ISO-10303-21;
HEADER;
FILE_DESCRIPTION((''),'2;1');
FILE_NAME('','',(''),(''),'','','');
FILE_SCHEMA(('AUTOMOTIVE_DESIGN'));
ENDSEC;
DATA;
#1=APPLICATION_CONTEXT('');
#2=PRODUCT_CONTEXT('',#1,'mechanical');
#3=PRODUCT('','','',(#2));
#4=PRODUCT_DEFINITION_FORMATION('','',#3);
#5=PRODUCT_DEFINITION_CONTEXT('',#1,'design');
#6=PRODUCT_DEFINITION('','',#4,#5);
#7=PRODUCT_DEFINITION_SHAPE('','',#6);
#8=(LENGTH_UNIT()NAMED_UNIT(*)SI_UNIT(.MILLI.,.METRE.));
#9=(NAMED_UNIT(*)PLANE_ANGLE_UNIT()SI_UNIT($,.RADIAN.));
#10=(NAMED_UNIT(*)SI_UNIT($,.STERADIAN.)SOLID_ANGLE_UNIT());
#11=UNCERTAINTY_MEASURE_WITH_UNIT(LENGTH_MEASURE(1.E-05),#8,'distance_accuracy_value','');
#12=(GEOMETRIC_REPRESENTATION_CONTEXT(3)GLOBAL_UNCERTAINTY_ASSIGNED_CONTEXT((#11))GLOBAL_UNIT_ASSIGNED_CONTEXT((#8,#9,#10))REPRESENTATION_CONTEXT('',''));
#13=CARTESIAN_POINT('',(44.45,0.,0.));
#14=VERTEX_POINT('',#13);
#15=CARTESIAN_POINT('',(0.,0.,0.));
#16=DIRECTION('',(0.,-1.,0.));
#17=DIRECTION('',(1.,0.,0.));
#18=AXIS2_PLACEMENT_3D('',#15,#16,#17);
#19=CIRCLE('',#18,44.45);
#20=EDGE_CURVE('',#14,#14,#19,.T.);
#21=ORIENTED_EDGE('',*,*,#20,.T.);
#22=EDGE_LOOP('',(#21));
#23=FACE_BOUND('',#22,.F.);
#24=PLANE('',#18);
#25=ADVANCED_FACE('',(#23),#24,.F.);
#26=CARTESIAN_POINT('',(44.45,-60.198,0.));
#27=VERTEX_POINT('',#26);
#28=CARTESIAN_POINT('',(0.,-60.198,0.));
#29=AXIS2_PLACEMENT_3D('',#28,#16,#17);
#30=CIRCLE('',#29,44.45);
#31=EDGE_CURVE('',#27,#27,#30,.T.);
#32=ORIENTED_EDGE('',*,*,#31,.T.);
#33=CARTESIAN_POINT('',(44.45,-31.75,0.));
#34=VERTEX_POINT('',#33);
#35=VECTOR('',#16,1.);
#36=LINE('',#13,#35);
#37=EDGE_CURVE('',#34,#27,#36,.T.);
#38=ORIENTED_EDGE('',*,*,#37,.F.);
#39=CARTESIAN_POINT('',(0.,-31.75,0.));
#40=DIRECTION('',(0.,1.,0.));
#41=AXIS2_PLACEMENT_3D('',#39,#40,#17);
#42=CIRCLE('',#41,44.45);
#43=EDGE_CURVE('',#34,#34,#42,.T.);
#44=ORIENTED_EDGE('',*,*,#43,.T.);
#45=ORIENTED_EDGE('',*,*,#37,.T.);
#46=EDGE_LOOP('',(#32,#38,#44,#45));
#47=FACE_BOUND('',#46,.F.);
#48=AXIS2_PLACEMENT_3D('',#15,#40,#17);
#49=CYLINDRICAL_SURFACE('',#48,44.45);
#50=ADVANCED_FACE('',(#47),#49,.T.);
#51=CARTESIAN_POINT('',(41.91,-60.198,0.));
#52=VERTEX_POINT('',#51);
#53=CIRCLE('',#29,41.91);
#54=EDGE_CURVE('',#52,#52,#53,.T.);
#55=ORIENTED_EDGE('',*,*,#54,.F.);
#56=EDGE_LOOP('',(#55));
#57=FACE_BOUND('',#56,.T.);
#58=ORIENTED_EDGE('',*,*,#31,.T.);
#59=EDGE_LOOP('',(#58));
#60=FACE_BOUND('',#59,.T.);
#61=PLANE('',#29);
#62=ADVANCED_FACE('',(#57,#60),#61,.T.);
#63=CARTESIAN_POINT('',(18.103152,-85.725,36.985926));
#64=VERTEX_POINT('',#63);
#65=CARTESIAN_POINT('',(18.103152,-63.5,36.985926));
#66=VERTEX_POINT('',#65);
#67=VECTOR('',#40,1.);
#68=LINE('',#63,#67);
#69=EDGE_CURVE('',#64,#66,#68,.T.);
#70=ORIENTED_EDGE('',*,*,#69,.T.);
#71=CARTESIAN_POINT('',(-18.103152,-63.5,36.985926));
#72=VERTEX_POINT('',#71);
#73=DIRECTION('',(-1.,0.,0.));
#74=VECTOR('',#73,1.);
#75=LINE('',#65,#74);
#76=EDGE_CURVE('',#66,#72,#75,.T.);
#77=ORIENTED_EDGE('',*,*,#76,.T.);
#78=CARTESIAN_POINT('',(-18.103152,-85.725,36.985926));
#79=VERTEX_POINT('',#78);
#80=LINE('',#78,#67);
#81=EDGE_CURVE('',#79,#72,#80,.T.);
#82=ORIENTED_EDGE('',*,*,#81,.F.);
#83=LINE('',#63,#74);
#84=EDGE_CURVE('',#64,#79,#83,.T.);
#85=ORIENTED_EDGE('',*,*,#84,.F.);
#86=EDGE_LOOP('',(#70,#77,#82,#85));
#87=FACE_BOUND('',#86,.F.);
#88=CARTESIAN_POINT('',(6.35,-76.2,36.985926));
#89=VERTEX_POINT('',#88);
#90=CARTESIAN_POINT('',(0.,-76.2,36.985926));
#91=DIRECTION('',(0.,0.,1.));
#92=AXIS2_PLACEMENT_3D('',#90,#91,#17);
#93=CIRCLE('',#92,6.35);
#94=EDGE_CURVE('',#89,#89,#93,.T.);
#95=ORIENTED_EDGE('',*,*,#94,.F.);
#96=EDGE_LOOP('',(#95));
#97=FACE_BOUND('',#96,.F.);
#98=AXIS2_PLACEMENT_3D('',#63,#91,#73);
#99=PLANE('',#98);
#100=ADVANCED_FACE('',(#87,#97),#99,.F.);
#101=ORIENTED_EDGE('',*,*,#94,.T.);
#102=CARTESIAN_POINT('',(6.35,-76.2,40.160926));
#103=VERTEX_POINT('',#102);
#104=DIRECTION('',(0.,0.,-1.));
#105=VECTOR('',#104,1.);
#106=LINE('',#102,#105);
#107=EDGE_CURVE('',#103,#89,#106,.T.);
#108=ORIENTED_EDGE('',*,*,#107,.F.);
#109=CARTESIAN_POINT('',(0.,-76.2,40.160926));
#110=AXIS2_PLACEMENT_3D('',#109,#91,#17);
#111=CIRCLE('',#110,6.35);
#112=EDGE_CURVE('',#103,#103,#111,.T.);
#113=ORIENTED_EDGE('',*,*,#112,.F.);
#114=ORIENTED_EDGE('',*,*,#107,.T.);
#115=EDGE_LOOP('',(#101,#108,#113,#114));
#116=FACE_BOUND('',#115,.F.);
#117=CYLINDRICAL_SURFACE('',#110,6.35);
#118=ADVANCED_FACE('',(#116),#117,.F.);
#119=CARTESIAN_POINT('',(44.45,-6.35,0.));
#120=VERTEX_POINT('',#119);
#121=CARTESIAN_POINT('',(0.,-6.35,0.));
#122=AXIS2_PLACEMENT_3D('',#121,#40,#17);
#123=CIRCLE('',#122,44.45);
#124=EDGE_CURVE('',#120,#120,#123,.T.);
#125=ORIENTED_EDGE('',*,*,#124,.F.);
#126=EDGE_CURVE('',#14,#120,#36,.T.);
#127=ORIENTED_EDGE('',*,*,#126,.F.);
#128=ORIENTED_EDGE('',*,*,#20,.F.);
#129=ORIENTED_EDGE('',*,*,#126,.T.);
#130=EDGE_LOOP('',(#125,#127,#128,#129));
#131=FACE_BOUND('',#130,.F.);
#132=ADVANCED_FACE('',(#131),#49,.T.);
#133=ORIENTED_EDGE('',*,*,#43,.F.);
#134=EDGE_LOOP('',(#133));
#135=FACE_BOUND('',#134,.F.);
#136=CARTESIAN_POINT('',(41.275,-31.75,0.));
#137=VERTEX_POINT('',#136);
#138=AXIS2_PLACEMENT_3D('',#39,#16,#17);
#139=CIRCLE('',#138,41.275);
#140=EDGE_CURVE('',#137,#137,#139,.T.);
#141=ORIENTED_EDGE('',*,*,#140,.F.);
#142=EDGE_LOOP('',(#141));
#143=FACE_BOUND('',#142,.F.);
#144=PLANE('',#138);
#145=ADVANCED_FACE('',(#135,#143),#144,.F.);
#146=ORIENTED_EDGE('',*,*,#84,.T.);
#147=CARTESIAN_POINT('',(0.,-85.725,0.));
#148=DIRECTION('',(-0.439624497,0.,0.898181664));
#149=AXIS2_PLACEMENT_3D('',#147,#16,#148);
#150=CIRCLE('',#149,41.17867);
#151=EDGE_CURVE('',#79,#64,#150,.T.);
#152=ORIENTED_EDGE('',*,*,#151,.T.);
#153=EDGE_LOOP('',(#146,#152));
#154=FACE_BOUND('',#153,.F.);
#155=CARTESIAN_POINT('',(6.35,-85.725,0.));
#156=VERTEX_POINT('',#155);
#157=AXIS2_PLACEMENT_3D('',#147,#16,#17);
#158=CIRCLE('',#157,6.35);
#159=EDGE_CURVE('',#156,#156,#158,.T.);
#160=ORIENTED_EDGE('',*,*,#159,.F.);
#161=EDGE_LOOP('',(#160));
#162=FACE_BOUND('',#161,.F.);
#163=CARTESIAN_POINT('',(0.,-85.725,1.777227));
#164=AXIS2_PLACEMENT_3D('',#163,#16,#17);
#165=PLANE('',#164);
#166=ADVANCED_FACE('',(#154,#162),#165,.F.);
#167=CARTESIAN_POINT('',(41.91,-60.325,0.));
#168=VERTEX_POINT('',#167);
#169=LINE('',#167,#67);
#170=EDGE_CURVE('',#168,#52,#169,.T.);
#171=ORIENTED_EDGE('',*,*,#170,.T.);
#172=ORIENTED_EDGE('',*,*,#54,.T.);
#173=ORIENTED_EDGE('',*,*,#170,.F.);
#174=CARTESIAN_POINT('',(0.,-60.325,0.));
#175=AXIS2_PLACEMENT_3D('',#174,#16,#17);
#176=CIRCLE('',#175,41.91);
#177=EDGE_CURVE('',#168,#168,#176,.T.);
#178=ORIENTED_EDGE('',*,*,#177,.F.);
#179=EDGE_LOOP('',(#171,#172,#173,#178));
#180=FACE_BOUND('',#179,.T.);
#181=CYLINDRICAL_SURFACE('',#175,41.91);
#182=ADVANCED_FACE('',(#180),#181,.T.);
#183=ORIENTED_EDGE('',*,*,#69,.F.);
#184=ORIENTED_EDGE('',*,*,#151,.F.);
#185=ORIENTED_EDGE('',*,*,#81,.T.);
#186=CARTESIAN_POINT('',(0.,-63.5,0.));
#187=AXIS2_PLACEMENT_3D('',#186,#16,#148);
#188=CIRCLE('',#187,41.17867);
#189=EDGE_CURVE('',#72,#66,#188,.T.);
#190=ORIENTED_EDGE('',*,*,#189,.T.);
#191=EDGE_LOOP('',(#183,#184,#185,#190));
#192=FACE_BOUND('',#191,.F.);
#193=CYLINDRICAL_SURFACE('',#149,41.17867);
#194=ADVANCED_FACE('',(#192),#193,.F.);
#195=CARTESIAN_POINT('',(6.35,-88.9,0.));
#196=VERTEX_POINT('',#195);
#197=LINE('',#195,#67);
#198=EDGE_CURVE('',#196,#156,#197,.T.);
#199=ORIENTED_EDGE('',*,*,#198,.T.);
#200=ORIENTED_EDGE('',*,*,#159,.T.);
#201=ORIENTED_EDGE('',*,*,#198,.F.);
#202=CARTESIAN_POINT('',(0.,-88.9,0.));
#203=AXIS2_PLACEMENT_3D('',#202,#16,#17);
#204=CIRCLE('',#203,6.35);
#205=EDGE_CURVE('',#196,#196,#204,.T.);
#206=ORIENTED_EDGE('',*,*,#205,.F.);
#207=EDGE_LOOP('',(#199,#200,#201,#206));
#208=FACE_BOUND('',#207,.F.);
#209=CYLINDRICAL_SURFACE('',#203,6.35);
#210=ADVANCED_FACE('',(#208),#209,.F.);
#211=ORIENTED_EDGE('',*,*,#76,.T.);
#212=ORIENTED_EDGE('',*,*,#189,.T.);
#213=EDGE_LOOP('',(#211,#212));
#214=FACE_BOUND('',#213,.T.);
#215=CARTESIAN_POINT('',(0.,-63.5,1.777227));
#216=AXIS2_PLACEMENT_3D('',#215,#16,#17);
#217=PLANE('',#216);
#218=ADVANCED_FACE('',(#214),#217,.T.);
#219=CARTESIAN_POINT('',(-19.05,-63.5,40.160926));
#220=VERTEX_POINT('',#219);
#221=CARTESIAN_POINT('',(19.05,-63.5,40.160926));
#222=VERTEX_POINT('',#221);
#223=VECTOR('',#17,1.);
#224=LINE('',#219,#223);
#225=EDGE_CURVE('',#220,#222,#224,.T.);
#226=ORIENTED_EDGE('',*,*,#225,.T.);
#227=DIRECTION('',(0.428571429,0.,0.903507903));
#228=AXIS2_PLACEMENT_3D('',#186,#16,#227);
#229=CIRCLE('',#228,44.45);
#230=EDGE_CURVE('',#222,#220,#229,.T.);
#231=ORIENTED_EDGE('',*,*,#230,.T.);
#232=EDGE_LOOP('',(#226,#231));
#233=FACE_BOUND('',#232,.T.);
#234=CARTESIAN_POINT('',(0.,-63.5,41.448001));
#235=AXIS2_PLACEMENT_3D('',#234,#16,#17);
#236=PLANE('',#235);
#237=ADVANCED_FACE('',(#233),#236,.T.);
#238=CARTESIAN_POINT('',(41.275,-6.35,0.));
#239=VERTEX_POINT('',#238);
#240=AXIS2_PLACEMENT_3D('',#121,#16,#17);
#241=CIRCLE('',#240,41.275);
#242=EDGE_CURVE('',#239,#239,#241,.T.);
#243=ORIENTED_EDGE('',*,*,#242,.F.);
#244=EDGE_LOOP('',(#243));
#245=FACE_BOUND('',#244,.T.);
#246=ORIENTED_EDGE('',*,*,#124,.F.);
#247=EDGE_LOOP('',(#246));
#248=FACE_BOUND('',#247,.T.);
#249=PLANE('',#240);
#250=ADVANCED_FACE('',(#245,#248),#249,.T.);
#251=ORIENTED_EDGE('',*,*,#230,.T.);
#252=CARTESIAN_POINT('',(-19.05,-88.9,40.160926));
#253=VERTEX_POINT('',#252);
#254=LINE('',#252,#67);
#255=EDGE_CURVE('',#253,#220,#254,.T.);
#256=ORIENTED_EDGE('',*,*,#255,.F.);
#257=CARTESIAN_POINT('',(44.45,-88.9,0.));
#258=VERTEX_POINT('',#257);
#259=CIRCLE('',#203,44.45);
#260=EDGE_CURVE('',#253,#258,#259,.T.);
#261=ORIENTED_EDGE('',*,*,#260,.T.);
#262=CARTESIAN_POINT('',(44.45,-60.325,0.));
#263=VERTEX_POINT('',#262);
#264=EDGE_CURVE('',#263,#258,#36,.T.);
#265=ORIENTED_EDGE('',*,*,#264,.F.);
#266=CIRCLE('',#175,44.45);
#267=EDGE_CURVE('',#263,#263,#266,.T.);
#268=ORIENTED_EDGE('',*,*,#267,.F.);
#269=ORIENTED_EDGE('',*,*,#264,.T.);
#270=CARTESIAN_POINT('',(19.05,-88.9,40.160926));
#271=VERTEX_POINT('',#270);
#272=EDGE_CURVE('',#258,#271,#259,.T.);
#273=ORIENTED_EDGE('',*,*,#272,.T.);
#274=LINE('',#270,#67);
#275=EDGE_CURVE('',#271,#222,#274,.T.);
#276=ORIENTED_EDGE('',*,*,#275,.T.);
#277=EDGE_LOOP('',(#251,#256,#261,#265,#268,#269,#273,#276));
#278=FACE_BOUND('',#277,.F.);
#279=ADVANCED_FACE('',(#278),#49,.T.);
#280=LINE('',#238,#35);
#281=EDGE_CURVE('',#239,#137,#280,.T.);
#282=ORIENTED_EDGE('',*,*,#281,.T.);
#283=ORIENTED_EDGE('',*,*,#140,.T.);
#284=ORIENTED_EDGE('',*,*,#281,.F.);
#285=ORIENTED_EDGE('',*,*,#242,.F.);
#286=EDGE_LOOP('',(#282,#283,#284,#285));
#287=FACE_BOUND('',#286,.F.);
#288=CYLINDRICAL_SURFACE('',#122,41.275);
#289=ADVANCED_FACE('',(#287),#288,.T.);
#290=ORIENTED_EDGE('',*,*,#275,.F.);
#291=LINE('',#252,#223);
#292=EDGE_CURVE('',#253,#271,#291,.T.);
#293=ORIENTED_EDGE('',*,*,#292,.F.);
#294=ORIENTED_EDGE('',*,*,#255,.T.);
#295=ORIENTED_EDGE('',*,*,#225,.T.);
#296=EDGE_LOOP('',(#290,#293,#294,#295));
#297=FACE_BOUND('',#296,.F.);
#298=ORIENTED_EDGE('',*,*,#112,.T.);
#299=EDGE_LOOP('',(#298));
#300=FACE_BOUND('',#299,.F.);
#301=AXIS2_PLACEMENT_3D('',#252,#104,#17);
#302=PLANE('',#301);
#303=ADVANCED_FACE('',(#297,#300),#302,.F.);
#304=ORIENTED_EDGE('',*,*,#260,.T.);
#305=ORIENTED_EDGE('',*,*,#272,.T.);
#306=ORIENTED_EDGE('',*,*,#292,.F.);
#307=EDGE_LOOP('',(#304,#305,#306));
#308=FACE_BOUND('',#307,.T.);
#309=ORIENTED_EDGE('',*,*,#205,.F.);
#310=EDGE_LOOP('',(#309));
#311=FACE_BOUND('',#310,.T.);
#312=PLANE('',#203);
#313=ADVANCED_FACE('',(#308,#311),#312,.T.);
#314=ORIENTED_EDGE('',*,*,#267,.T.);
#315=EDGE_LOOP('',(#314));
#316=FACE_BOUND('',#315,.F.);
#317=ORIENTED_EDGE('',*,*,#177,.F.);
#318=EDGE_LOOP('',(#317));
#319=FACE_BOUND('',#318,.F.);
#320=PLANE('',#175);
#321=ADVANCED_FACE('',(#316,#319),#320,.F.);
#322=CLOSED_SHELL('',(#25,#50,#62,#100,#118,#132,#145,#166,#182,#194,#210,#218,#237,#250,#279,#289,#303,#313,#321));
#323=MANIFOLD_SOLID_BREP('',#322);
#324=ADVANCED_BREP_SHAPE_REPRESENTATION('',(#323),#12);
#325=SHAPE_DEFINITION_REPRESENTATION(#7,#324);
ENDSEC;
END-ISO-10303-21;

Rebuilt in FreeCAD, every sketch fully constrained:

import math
import FreeCAD as App
import Part
import Sketcher
from FreeCAD import Vector
Q = App.Units.Quantity

doc = App.newDocument("Part")
body = doc.addObject("PartDesign::Body", "Body")

# Sketch on XZ plane
sketch1 = doc.addObject("Sketcher::SketchObject", "Sketch")
body.addObject(sketch1)
sketch1.AttachmentSupport = (doc.XZ_Plane, [""])
sketch1.MapMode = "FlatFace"
sketch1.addGeometry(Part.Circle(Vector(0, 0, 0), Vector(0, 0, 1), 44), False)
sketch1.addConstraint(Sketcher.Constraint("Coincident", 0, 3, -1, 1))
sketch1.addConstraint(Sketcher.Constraint("Diameter", 0, Q("3.5 in")))
pad1 = doc.addObject("PartDesign::Pad", "Pad")
body.addObject(pad1)
pad1.Profile = sketch1
pad1.Length = Q("3.5 in")

# Sketch on XZ plane
sketch2 = doc.addObject("Sketcher::SketchObject", "Sketch001")
body.addObject(sketch2)
sketch2.AttachmentSupport = (doc.XZ_Plane, [""])
sketch2.MapMode = "FlatFace"
sketch2.AttachmentOffset = App.Placement(Vector(0, 0, 3.5 * 25.4), App.Rotation())
sketch2.addGeometry(Part.Circle(Vector(0, 0, 0), Vector(0, 0, 1), 6), False)
sketch2.addConstraint(Sketcher.Constraint("Coincident", 0, 3, -1, 1))
sketch2.addConstraint(Sketcher.Constraint("Diameter", 0, Q("0.5 in")))
pocket1 = doc.addObject("PartDesign::Pocket", "Pocket")
body.addObject(pocket1)
pocket1.Profile = sketch2
pocket1.Length = Q("1 in")

# Sketch on XZ plane
sketch3 = doc.addObject("Sketcher::SketchObject", "Sketch002")
body.addObject(sketch3)
sketch3.AttachmentSupport = (doc.XZ_Plane, [""])
sketch3.MapMode = "FlatFace"
sketch3.AttachmentOffset = App.Placement(Vector(0, 0, 3.5 * 25.4), App.Rotation())
sketch3.addGeometry(Part.ArcOfCircle(Part.Circle(Vector(0, 0, 0), Vector(0, 0, 1), 44), math.radians(65), math.radians(115)), False)
sketch3.addGeometry(Part.LineSegment(Vector(-19, 40, 0), Vector(19, 40, 0)), False)
sketch3.addConstraint(Sketcher.Constraint("Coincident", 0, 1, 1, 2))
sketch3.addConstraint(Sketcher.Constraint("Coincident", 1, 1, 0, 2))
sketch3.addConstraint(Sketcher.Constraint("Horizontal", 1))
sketch3.addConstraint(Sketcher.Constraint("Coincident", 0, 3, -1, 1))
sketch3.addConstraint(Sketcher.Constraint("Radius", 0, Q("1.75 in")))
sketch3.addConstraint(Sketcher.Constraint("DistanceX", 1, 1, 1, 2, Q("1.5 in")))
pocket2 = doc.addObject("PartDesign::Pocket", "Pocket001")
body.addObject(pocket2)
pocket2.Profile = sketch3
pocket2.Length = Q("1 in")

# Sketch on XY plane
sketch4 = doc.addObject("Sketcher::SketchObject", "Sketch003")
body.addObject(sketch4)
sketch4.AttachmentSupport = (doc.XY_Plane, [""])
sketch4.MapMode = "FlatFace"
sketch4.AttachmentOffset = App.Placement(Vector(0, 0, 40.160926), App.Rotation())
sketch4.addGeometry(Part.Circle(Vector(0, -76, 0), Vector(0, 0, 1), 6), False)
sketch4.addConstraint(Sketcher.Constraint("PointOnObject", 0, 3, -2))
sketch4.addConstraint(Sketcher.Constraint("Diameter", 0, Q("0.5 in")))
sketch4.addConstraint(Sketcher.Constraint("DistanceY", 0, 3, -1, 1, Q("3 in")))
pocket3 = doc.addObject("PartDesign::Pocket", "Pocket002")
body.addObject(pocket3)
pocket3.Profile = sketch4
pocket3.Length = Q("1 in")

# Sketch on XZ plane
sketch5 = doc.addObject("Sketcher::SketchObject", "Sketch004")
body.addObject(sketch5)
sketch5.AttachmentSupport = (doc.XZ_Plane, [""])
sketch5.MapMode = "FlatFace"
sketch5.AttachmentOffset = App.Placement(Vector(0, 0, 3.375 * 25.4), App.Rotation())
sketch5.addGeometry(Part.LineSegment(Vector(18, 37, 0), Vector(-18, 37, 0)), False)
sketch5.addGeometry(Part.ArcOfCircle(Part.Circle(Vector(0, 0, 0), Vector(0, 0, 1), 41), math.radians(116), math.radians(424)), False)
sketch5.addConstraint(Sketcher.Constraint("Coincident", 0, 1, 1, 2))
sketch5.addConstraint(Sketcher.Constraint("Coincident", 1, 1, 0, 2))
sketch5.addConstraint(Sketcher.Constraint("Horizontal", 0))
sketch5.addConstraint(Sketcher.Constraint("Coincident", 1, 3, -1, 1))
sketch5.addConstraint(Sketcher.Constraint("Radius", 1, 41.17867))
sketch5.addConstraint(Sketcher.Constraint("DistanceX", 0, 2, 0, 1, 36.206304))
pocket4 = doc.addObject("PartDesign::Pocket", "Pocket003")
body.addObject(pocket4)
pocket4.Profile = sketch5
pocket4.Length = Q("0.875 in")

# Sketch on XZ plane
sketch6 = doc.addObject("Sketcher::SketchObject", "Sketch005")
body.addObject(sketch6)
sketch6.AttachmentSupport = (doc.XZ_Plane, [""])
sketch6.MapMode = "FlatFace"
sketch6.AttachmentOffset = App.Placement(Vector(0, 0, 2.375 * 25.4), App.Rotation())
sketch6.addGeometry(Part.Circle(Vector(0, 0, 0), Vector(0, 0, 1), 44), False)
sketch6.addGeometry(Part.Circle(Vector(0, 0, 0), Vector(0, 0, 1), 42), False)
sketch6.addConstraint(Sketcher.Constraint("Coincident", 0, 3, -1, 1))
sketch6.addConstraint(Sketcher.Constraint("Coincident", 1, 3, -1, 1))
sketch6.addConstraint(Sketcher.Constraint("Diameter", 0, Q("3.5 in")))
sketch6.addConstraint(Sketcher.Constraint("Diameter", 1, Q("3.3 in")))
pocket5 = doc.addObject("PartDesign::Pocket", "Pocket004")
body.addObject(pocket5)
pocket5.Profile = sketch6
pocket5.Length = Q("0.005 in")

# Sketch on XZ plane
sketch7 = doc.addObject("Sketcher::SketchObject", "Sketch006")
body.addObject(sketch7)
sketch7.AttachmentSupport = (doc.XZ_Plane, [""])
sketch7.MapMode = "FlatFace"
sketch7.AttachmentOffset = App.Placement(Vector(0, 0, 0.25 * 25.4), App.Rotation())
sketch7.addGeometry(Part.Circle(Vector(0, 0, 0), Vector(0, 0, 1), 48), False)
sketch7.addGeometry(Part.Circle(Vector(0, 0, 0), Vector(0, 0, 1), 41), False)
sketch7.addConstraint(Sketcher.Constraint("Coincident", 0, 3, -1, 1))
sketch7.addConstraint(Sketcher.Constraint("Coincident", 1, 3, -1, 1))
sketch7.addConstraint(Sketcher.Constraint("Diameter", 1, Q("3.25 in")))
sketch7.addConstraint(Sketcher.Constraint("Diameter", 0, 96.938424))
pocket6 = doc.addObject("PartDesign::Pocket", "Pocket005")
body.addObject(pocket6)
pocket6.Profile = sketch7
pocket6.Length = Q("1 in")
pocket6.Reversed = True

doc.recompute()
